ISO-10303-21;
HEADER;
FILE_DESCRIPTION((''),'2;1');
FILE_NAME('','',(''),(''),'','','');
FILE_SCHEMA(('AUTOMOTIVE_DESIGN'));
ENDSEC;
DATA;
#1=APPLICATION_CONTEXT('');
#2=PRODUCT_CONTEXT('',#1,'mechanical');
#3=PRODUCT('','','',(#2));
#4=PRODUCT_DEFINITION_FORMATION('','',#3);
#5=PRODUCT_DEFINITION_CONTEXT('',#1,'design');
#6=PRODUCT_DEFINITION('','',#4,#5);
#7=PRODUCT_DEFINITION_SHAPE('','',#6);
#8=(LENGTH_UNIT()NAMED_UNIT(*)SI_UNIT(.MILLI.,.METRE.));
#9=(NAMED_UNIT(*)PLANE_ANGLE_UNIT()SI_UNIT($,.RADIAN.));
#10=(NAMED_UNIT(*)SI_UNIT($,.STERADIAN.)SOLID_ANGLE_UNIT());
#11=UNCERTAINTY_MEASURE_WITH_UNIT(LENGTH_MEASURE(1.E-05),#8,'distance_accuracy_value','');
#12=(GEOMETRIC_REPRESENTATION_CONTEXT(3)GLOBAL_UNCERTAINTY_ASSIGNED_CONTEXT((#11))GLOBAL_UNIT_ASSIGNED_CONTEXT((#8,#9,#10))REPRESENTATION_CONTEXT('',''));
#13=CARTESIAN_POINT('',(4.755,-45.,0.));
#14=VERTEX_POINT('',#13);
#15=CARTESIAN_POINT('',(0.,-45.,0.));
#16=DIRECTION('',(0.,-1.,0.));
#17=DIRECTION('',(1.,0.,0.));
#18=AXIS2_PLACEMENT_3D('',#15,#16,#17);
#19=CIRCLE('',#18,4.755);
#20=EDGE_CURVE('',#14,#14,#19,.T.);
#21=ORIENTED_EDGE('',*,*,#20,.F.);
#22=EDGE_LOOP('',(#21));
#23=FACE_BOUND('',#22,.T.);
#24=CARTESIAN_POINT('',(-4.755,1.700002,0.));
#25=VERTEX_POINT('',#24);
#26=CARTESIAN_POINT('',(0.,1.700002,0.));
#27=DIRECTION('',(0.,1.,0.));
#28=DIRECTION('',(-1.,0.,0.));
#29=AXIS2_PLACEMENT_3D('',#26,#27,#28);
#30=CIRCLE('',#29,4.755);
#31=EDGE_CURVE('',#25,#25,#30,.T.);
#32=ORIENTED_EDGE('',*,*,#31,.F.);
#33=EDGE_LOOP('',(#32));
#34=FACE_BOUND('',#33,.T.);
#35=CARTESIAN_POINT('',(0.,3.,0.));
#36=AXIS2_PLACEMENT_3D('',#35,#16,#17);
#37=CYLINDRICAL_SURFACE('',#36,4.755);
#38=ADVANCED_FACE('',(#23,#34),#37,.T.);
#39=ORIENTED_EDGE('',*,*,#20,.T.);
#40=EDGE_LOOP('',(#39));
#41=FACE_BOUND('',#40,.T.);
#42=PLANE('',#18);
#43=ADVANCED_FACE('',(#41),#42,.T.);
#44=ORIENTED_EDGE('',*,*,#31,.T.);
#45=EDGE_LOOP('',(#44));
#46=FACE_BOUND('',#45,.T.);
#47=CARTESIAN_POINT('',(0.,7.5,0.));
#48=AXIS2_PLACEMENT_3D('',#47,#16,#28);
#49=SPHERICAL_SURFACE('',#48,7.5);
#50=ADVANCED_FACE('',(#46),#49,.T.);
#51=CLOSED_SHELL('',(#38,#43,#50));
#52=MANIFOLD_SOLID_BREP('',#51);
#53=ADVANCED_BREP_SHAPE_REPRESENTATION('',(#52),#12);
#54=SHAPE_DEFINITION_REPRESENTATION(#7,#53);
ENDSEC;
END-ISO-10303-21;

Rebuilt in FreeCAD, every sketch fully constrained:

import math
import FreeCAD as App
import Part
import Sketcher
from FreeCAD import Vector
Q = App.Units.Quantity

doc = App.newDocument("Part")
body = doc.addObject("PartDesign::Body", "Body")

# Sketch on XY plane
sketch1 = doc.addObject("Sketcher::SketchObject", "Sketch")
body.addObject(sketch1)
sketch1.AttachmentSupport = (doc.XY_Plane, [""])
sketch1.MapMode = "FlatFace"
sketch1.addGeometry([
    Part.LineSegment(Vector(0, 0, 0), Vector(0, 15, 0)),
    Part.ArcOfCircle(Part.Circle(Vector(0, 8, 0), Vector(0, 0, 1), 8), math.radians(90), math.radians(270)),
], False)
sketch1.addConstraint([
    Sketcher.Constraint("Coincident", 0, 1, 1, 2),
    Sketcher.Constraint("Coincident", 1, 1, 0, 2),
    Sketcher.Constraint("Vertical", 0),
    Sketcher.Constraint("Coincident", 0, 1, -1, 1),
    Sketcher.Constraint("PointOnObject", 1, 3, -2),
    Sketcher.Constraint("Radius", 1, Q("7.5 mm")),
])
revolution = doc.addObject("PartDesign::Revolution", "Revolution")
body.addObject(revolution)
revolution.Profile = sketch1
revolution.ReferenceAxis = (sketch1, ["V_Axis"])
revolution.Angle = 360

# Sketch on XZ plane
sketch2 = doc.addObject("Sketcher::SketchObject", "Sketch001")
body.addObject(sketch2)
sketch2.AttachmentSupport = (doc.XZ_Plane, [""])
sketch2.MapMode = "FlatFace"
sketch2.addGeometry(Part.Circle(Vector(0, 0, 0), Vector(0, 0, 1), 4.8), False)
sketch2.addConstraint([
    Sketcher.Constraint("Coincident", 0, 3, -1, 1),
    Sketcher.Constraint("Diameter", 0, Q("9.51 mm")),
])
pad1 = doc.addObject("PartDesign::Pad", "Pad")
body.addObject(pad1)
pad1.Profile = sketch2
pad1.Length = 3
pad1.Reversed = True

# Sketch on XZ plane
sketch3 = doc.addObject("Sketcher::SketchObject", "Sketch002")
body.addObject(sketch3)
sketch3.AttachmentSupport = (doc.XZ_Plane, [""])
sketch3.MapMode = "FlatFace"
sketch3.addGeometry(Part.Circle(Vector(0, 0, 0), Vector(0, 0, 1), 4.8), False)
sketch3.addConstraint([
    Sketcher.Constraint("Coincident", 0, 3, -1, 1),
    Sketcher.Constraint("Diameter", 0, Q("9.51 mm")),
])
pad2 = doc.addObject("PartDesign::Pad", "Pad001")
body.addObject(pad2)
pad2.Profile = sketch3
pad2.Length = 45

doc.recompute()
